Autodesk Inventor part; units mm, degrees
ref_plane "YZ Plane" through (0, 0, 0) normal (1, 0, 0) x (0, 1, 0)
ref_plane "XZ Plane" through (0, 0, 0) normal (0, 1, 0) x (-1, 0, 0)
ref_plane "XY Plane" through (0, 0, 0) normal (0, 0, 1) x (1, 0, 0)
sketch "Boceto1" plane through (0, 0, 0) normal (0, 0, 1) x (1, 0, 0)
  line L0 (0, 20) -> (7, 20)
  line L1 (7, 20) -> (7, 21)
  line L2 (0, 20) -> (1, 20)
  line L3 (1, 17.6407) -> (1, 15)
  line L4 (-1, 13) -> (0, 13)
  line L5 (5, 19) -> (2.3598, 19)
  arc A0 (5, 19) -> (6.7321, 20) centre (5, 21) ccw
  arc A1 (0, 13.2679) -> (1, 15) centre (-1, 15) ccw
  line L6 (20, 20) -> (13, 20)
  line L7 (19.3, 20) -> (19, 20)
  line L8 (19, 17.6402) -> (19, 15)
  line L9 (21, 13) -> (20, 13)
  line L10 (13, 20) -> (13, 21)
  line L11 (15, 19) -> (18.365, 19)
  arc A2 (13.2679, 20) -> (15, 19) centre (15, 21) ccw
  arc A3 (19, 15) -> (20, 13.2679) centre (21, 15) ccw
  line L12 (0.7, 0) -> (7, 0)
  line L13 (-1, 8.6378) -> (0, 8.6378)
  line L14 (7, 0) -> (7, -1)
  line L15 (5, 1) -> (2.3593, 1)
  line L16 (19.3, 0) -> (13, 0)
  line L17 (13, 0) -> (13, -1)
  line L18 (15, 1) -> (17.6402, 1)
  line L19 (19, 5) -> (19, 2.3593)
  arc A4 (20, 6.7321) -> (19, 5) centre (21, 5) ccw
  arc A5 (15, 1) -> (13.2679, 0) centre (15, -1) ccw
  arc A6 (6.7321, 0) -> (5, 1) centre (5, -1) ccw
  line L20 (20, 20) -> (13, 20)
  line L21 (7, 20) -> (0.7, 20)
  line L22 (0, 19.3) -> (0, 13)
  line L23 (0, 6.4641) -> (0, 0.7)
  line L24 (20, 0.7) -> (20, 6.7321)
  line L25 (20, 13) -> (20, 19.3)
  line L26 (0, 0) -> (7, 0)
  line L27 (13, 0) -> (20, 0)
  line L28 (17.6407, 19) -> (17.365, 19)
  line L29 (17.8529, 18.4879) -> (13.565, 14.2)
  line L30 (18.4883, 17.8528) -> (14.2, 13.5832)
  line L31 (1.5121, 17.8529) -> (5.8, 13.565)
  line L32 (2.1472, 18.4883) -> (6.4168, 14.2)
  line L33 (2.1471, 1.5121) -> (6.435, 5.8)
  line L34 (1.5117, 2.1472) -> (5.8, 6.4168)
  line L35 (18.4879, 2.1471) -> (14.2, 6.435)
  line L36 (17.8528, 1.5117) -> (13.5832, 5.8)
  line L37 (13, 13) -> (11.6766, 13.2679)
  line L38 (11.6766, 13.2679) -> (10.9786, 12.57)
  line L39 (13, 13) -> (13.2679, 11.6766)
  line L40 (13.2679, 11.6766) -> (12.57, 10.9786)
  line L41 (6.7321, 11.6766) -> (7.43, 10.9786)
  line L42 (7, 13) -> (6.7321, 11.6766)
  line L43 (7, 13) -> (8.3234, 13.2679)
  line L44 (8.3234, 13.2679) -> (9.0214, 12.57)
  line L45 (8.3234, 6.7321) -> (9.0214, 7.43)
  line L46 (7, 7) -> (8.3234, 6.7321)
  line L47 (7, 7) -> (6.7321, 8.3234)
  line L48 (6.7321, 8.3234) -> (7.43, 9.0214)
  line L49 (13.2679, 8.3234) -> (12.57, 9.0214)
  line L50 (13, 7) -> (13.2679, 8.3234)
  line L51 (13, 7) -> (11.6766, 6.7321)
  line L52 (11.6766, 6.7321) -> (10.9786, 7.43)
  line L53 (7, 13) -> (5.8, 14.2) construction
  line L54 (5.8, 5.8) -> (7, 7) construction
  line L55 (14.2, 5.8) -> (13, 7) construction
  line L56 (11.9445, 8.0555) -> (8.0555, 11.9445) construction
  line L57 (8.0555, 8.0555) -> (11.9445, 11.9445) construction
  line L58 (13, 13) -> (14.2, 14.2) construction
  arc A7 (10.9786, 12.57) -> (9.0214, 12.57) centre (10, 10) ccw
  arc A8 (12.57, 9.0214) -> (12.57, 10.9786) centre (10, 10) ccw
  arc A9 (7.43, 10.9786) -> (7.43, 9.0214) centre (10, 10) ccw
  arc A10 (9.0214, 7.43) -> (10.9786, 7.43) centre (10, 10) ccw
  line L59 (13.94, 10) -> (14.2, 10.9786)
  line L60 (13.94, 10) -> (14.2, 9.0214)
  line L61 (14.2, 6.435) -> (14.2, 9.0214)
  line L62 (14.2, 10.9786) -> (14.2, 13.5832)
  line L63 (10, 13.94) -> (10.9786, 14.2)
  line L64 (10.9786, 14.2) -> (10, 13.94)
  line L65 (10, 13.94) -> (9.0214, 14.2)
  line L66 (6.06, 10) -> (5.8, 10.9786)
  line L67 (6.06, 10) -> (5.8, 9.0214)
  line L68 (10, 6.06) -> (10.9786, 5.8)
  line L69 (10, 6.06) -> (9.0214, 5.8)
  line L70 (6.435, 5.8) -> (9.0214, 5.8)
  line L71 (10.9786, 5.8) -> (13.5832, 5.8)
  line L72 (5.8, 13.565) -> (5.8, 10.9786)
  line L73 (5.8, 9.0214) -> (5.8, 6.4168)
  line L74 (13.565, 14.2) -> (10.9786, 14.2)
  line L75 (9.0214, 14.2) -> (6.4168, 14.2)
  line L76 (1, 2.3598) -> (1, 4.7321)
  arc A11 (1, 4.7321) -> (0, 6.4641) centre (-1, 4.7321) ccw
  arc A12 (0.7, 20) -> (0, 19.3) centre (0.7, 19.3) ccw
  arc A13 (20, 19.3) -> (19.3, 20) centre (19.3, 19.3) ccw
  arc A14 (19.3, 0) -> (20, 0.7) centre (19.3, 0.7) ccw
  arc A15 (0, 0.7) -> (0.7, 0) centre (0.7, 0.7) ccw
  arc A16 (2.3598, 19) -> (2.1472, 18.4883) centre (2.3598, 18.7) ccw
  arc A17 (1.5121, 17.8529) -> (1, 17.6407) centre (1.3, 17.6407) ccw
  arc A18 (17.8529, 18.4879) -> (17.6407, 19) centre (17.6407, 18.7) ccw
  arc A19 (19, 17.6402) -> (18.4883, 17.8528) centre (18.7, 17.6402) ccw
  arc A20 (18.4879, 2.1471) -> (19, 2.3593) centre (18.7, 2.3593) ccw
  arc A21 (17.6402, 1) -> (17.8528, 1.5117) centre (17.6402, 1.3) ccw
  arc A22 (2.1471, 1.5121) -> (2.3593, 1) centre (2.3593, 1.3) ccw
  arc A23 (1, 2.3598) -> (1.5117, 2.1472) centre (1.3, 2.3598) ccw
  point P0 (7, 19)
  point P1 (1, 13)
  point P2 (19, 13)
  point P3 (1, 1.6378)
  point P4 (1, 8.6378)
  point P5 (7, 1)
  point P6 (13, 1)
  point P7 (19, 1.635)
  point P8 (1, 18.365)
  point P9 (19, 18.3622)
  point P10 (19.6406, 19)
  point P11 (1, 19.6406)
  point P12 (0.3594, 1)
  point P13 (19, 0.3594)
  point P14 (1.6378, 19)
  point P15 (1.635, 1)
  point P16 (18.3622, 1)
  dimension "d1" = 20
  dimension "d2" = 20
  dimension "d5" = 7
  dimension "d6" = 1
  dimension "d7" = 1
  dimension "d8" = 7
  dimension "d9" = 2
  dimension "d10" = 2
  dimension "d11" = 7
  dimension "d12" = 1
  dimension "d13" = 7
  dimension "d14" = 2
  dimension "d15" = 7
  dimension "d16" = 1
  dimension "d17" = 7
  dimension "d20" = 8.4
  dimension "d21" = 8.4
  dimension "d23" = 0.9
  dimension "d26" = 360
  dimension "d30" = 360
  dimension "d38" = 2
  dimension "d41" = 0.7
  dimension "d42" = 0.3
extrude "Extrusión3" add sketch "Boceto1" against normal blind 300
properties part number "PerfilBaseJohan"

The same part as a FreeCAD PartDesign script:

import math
import FreeCAD as App
import Part
import Sketcher

V = App.Vector
Q = App.Units.Quantity

doc = App.newDocument("Part")
params = doc.addObject("Spreadsheet::Sheet", "Params")
for row, (alias, value) in enumerate([
    ("sketch1_radius", "2 mm"),
    ("sketch1_radius2", "0.7 mm"),
    ("sketch1_radius3", "0.3 mm"),
    ("sketch1_radius4", "2.75 mm"),
    ("pad1_length", "300 mm"),
], start=1):
    params.set(f"A{row}", alias)
    params.set(f"B{row}", "=" + value)
    params.setAlias(f"B{row}", alias)

body = doc.addObject("PartDesign::Body", "Body")

# Sketch on XY plane
sketch1 = body.newObject("Sketcher::SketchObject", "Sketch")
sketch1.AttachmentSupport = (doc.getObject("XY_Plane"), [""])
sketch1.MapMode = "FlatFace"
sketch1.addGeometry([
    Part.LineSegment(V(6.7321, 20, 0), V(0.7, 20, 0)),  # 0
    Part.ArcOfCircle(Part.Circle(V(0.7, 19.3, 0), V(0, 0, 1), 0.7), math.radians(90), math.radians(180)),  # 1
    Part.LineSegment(V(0, 19.3, 0), V(0, 13.2679, 0)),  # 2
    Part.ArcOfCircle(Part.Circle(V(-1, 15, 0), V(0, 0, 1), 2.000043), math.radians(-60.000705), math.radians(0)),  # 3
    Part.LineSegment(V(1, 15, 0), V(1, 17.6407, 0)),  # 4
    Part.ArcOfCircle(Part.Circle(V(1.3, 17.6407, 0), V(0, 0, 1), 0.300025), math.radians(45.013504), math.radians(180)),  # 5
    Part.LineSegment(V(1.5121, 17.8529, 0), V(5.8, 13.565, 0)),  # 6
    Part.LineSegment(V(5.8, 13.565, 0), V(5.8, 10.9786, 0)),  # 7
    Part.LineSegment(V(5.8, 10.9786, 0), V(6.06, 10, 0)),  # 8
    Part.LineSegment(V(6.06, 10, 0), V(5.8, 9.0214, 0)),  # 9
    Part.LineSegment(V(5.8, 9.0214, 0), V(5.8, 6.4168, 0)),  # 10
    Part.LineSegment(V(5.8, 6.4168, 0), V(1.5117, 2.1472, 0)),  # 11
    Part.ArcOfCircle(Part.Circle(V(1.3, 2.3598, 0), V(0, 0, 1), 0.3), math.radians(180), math.radians(314.878468)),  # 12
    Part.LineSegment(V(1, 2.3598, 0), V(1, 4.7321, 0)),  # 13
    Part.ArcOfCircle(Part.Circle(V(-1, 4.7321, 0), V(0, 0, 1), 2), math.radians(0), math.radians(59.999272)),  # 14
    Part.LineSegment(V(0, 6.4641, 0), V(0, 0.7, 0)),  # 15
    Part.ArcOfCircle(Part.Circle(V(0.7, 0.7, 0), V(0, 0, 1), 0.7), math.radians(180), math.radians(270)),  # 16
    Part.LineSegment(V(0.7, 0, 0), V(6.7321, 0, 0)),  # 17
    Part.ArcOfCircle(Part.Circle(V(5, -1, 0), V(0, 0, 1), 2.000043), math.radians(29.999295), math.radians(90)),  # 18
    Part.LineSegment(V(5, 1, 0), V(2.3593, 1, 0)),  # 19
    Part.ArcOfCircle(Part.Circle(V(2.3593, 1.3, 0), V(0, 0, 1), 0.300025), math.radians(135.013504), math.radians(270)),  # 20
    Part.LineSegment(V(2.1471, 1.5121, 0), V(6.435, 5.8, 0)),  # 21
    Part.LineSegment(V(6.435, 5.8, 0), V(9.0214, 5.8, 0)),  # 22
    Part.LineSegment(V(9.0214, 5.8, 0), V(10, 6.06, 0)),  # 23
    Part.LineSegment(V(10, 6.06, 0), V(10.9786, 5.8, 0)),  # 24
    Part.LineSegment(V(10.9786, 5.8, 0), V(13.5832, 5.8, 0)),  # 25
    Part.LineSegment(V(13.5832, 5.8, 0), V(17.8528, 1.5117, 0)),  # 26
    Part.ArcOfCircle(Part.Circle(V(17.6402, 1.3, 0), V(0, 0, 1), 0.3), math.radians(-90), math.radians(44.878468)),  # 27
    Part.LineSegment(V(17.6402, 1, 0), V(15, 1, 0)),  # 28
    Part.ArcOfCircle(Part.Circle(V(15, -1, 0), V(0, 0, 1), 2), math.radians(90), math.radians(150.000705)),  # 29
    Part.LineSegment(V(13.2679, 0, 0), V(19.3, 0, 0)),  # 30
    Part.ArcOfCircle(Part.Circle(V(19.3, 0.7, 0), V(0, 0, 1), 0.7), math.radians(-90), math.radians(0)),  # 31
    Part.LineSegment(V(20, 0.7, 0), V(20, 6.7321, 0)),  # 32
    Part.ArcOfCircle(Part.Circle(V(21, 5, 0), V(0, 0, 1), 2.000043), math.radians(119.999295), math.radians(180)),  # 33
    Part.LineSegment(V(19, 5, 0), V(19, 2.3593, 0)),  # 34
    Part.ArcOfCircle(Part.Circle(V(18.7, 2.3593, 0), V(0, 0, 1), 0.300025), math.radians(-134.986496), math.radians(0)),  # 35
    Part.LineSegment(V(18.4879, 2.1471, 0), V(14.2, 6.435, 0)),  # 36
    Part.LineSegment(V(14.2, 6.435, 0), V(14.2, 9.0214, 0)),  # 37
    Part.LineSegment(V(14.2, 9.0214, 0), V(13.94, 10, 0)),  # 38
    Part.LineSegment(V(13.94, 10, 0), V(14.2, 10.9786, 0)),  # 39
    Part.LineSegment(V(14.2, 10.9786, 0), V(14.2, 13.5832, 0)),  # 40
    Part.LineSegment(V(14.2, 13.5832, 0), V(18.4883, 17.8528, 0)),  # 41
    Part.ArcOfCircle(Part.Circle(V(18.7, 17.6402, 0), V(0, 0, 1), 0.3), math.radians(0), math.radians(134.878468)),  # 42
    Part.LineSegment(V(19, 17.6402, 0), V(19, 15, 0)),  # 43
    Part.ArcOfCircle(Part.Circle(V(21, 15, 0), V(0, 0, 1), 2), math.radians(180), math.radians(240.000705)),  # 44
    Part.LineSegment(V(20, 13.2679, 0), V(20, 19.3, 0)),  # 45
    Part.ArcOfCircle(Part.Circle(V(19.3, 19.3, 0), V(0, 0, 1), 0.7), math.radians(0), math.radians(90)),  # 46
    Part.LineSegment(V(19.3, 20, 0), V(13.2679, 20, 0)),  # 47
    Part.ArcOfCircle(Part.Circle(V(15, 21, 0), V(0, 0, 1), 2.000043), math.radians(-150.000705), math.radians(-90)),  # 48
    Part.LineSegment(V(15, 19, 0), V(17.6407, 19, 0)),  # 49
    Part.ArcOfCircle(Part.Circle(V(17.6407, 18.7, 0), V(0, 0, 1), 0.300025), math.radians(-44.986496), math.radians(90)),  # 50
    Part.LineSegment(V(17.8529, 18.4879, 0), V(13.565, 14.2, 0)),  # 51
    Part.LineSegment(V(13.565, 14.2, 0), V(10.9786, 14.2, 0)),  # 52
    Part.LineSegment(V(10.9786, 14.2, 0), V(10, 13.94, 0)),  # 53
    Part.LineSegment(V(10, 13.94, 0), V(9.0214, 14.2, 0)),  # 54
    Part.LineSegment(V(9.0214, 14.2, 0), V(6.4168, 14.2, 0)),  # 55
    Part.LineSegment(V(6.4168, 14.2, 0), V(2.1472, 18.4883, 0)),  # 56
    Part.ArcOfCircle(Part.Circle(V(2.3598, 18.7, 0), V(0, 0, 1), 0.3), math.radians(90), math.radians(224.878468)),  # 57
    Part.LineSegment(V(2.3598, 19, 0), V(5, 19, 0)),  # 58
    Part.ArcOfCircle(Part.Circle(V(5, 21, 0), V(0, 0, 1), 2), math.radians(-90), math.radians(-29.999295)),  # 59
    Part.LineSegment(V(11.6766, 13.2679, 0), V(13, 13, 0)),  # 60
    Part.LineSegment(V(13, 13, 0), V(13.2679, 11.6766, 0)),  # 61
    Part.LineSegment(V(13.2679, 11.6766, 0), V(12.57, 10.9786, 0)),  # 62
    Part.ArcOfCircle(Part.Circle(V(10, 10, 0), V(0, 0, 1), 2.750011), math.radians(-20.845743), math.radians(20.845743)),  # 63
    Part.LineSegment(V(12.57, 9.0214, 0), V(13.2679, 8.3234, 0)),  # 64
    Part.LineSegment(V(13.2679, 8.3234, 0), V(13, 7, 0)),  # 65
    Part.LineSegment(V(13, 7, 0), V(11.6766, 6.7321, 0)),  # 66
    Part.LineSegment(V(11.6766, 6.7321, 0), V(10.9786, 7.43, 0)),  # 67
    Part.ArcOfCircle(Part.Circle(V(10, 10, 0), V(0, 0, 1), 2.750011), math.radians(-110.845743), math.radians(-69.154257)),  # 68
    Part.LineSegment(V(9.0214, 7.43, 0), V(8.3234, 6.7321, 0)),  # 69
    Part.LineSegment(V(8.3234, 6.7321, 0), V(7, 7, 0)),  # 70
    Part.LineSegment(V(7, 7, 0), V(6.7321, 8.3234, 0)),  # 71
    Part.LineSegment(V(6.7321, 8.3234, 0), V(7.43, 9.0214, 0)),  # 72
    Part.ArcOfCircle(Part.Circle(V(10, 10, 0), V(0, 0, 1), 2.750011), math.radians(159.154257), math.radians(200.845743)),  # 73
    Part.LineSegment(V(7.43, 10.9786, 0), V(6.7321, 11.6766, 0)),  # 74
    Part.LineSegment(V(6.7321, 11.6766, 0), V(7, 13, 0)),  # 75
    Part.LineSegment(V(7, 13, 0), V(8.3234, 13.2679, 0)),  # 76
    Part.LineSegment(V(8.3234, 13.2679, 0), V(9.0214, 12.57, 0)),  # 77
    Part.ArcOfCircle(Part.Circle(V(10, 10, 0), V(0, 0, 1), 2.750011), math.radians(69.154257), math.radians(110.845743)),  # 78
    Part.LineSegment(V(10.9786, 12.57, 0), V(11.6766, 13.2679, 0)),  # 79
], False)
sketch1.addConstraint([
    Sketcher.Constraint("Tangent", 0, 2, 1, 1),
    Sketcher.Constraint("Tangent", 1, 2, 2, 1),
    Sketcher.Constraint("Coincident", 2, 2, 3, 1),
    Sketcher.Constraint("Tangent", 3, 2, 4, 1),
    Sketcher.Constraint("Tangent", 4, 2, 5, 2),
    Sketcher.Constraint("Tangent", 5, 1, 6, 1),
    Sketcher.Constraint("Coincident", 6, 2, 7, 1),
    Sketcher.Constraint("Coincident", 7, 2, 8, 1),
    Sketcher.Constraint("Coincident", 8, 2, 9, 1),
    Sketcher.Constraint("Coincident", 9, 2, 10, 1),
    Sketcher.Constraint("Coincident", 10, 2, 11, 1),
    Sketcher.Constraint("Tangent", 11, 2, 12, 2),
    Sketcher.Constraint("Tangent", 12, 1, 13, 1),
    Sketcher.Constraint("Tangent", 13, 2, 14, 1),
    Sketcher.Constraint("Coincident", 14, 2, 15, 1),
    Sketcher.Constraint("Tangent", 15, 2, 16, 1),
    Sketcher.Constraint("Tangent", 16, 2, 17, 1),
    Sketcher.Constraint("Coincident", 17, 2, 18, 1),
    Sketcher.Constraint("Tangent", 18, 2, 19, 1),
    Sketcher.Constraint("Tangent", 19, 2, 20, 2),
    Sketcher.Constraint("Tangent", 20, 1, 21, 1),
    Sketcher.Constraint("Coincident", 21, 2, 22, 1),
    Sketcher.Constraint("Coincident", 22, 2, 23, 1),
    Sketcher.Constraint("Coincident", 23, 2, 24, 1),
    Sketcher.Constraint("Coincident", 24, 2, 25, 1),
    Sketcher.Constraint("Coincident", 25, 2, 26, 1),
    Sketcher.Constraint("Tangent", 26, 2, 27, 2),
    Sketcher.Constraint("Tangent", 27, 1, 28, 1),
    Sketcher.Constraint("Tangent", 28, 2, 29, 1),
    Sketcher.Constraint("Coincident", 29, 2, 30, 1),
    Sketcher.Constraint("Tangent", 30, 2, 31, 1),
    Sketcher.Constraint("Tangent", 31, 2, 32, 1),
    Sketcher.Constraint("Coincident", 32, 2, 33, 1),
    Sketcher.Constraint("Tangent", 33, 2, 34, 1),
    Sketcher.Constraint("Tangent", 34, 2, 35, 2),
    Sketcher.Constraint("Tangent", 35, 1, 36, 1),
    Sketcher.Constraint("Coincident", 36, 2, 37, 1),
    Sketcher.Constraint("Coincident", 37, 2, 38, 1),
    Sketcher.Constraint("Coincident", 38, 2, 39, 1),
    Sketcher.Constraint("Coincident", 39, 2, 40, 1),
    Sketcher.Constraint("Coincident", 40, 2, 41, 1),
    Sketcher.Constraint("Tangent", 41, 2, 42, 2),
    Sketcher.Constraint("Tangent", 42, 1, 43, 1),
    Sketcher.Constraint("Tangent", 43, 2, 44, 1),
    Sketcher.Constraint("Coincident", 44, 2, 45, 1),
    Sketcher.Constraint("Tangent", 45, 2, 46, 1),
    Sketcher.Constraint("Tangent", 46, 2, 47, 1),
    Sketcher.Constraint("Coincident", 47, 2, 48, 1),
    Sketcher.Constraint("Tangent", 48, 2, 49, 1),
    Sketcher.Constraint("Tangent", 49, 2, 50, 2),
    Sketcher.Constraint("Tangent", 50, 1, 51, 1),
    Sketcher.Constraint("Coincident", 51, 2, 52, 1),
    Sketcher.Constraint("Coincident", 52, 2, 53, 1),
    Sketcher.Constraint("Coincident", 53, 2, 54, 1),
    Sketcher.Constraint("Coincident", 54, 2, 55, 1),
    Sketcher.Constraint("Coincident", 55, 2, 56, 1),
    Sketcher.Constraint("Tangent", 56, 2, 57, 2),
    Sketcher.Constraint("Tangent", 57, 1, 58, 1),
    Sketcher.Constraint("Tangent", 58, 2, 59, 1),
    Sketcher.Constraint("Coincident", 59, 2, 0, 1),
    Sketcher.Constraint("Coincident", 60, 2, 61, 1),
    Sketcher.Constraint("Coincident", 61, 2, 62, 1),
    Sketcher.Constraint("Coincident", 62, 2, 63, 2),
    Sketcher.Constraint("Coincident", 63, 1, 64, 1),
    Sketcher.Constraint("Coincident", 64, 2, 65, 1),
    Sketcher.Constraint("Coincident", 65, 2, 66, 1),
    Sketcher.Constraint("Coincident", 66, 2, 67, 1),
    Sketcher.Constraint("Coincident", 67, 2, 68, 2),
    Sketcher.Constraint("Coincident", 68, 1, 69, 1),
    Sketcher.Constraint("Coincident", 69, 2, 70, 1),
    Sketcher.Constraint("Coincident", 70, 2, 71, 1),
    Sketcher.Constraint("Coincident", 71, 2, 72, 1),
    Sketcher.Constraint("Coincident", 72, 2, 73, 2),
    Sketcher.Constraint("Coincident", 73, 1, 74, 1),
    Sketcher.Constraint("Coincident", 74, 2, 75, 1),
    Sketcher.Constraint("Coincident", 75, 2, 76, 1),
    Sketcher.Constraint("Coincident", 76, 2, 77, 1),
    Sketcher.Constraint("Coincident", 77, 2, 78, 2),
    Sketcher.Constraint("Coincident", 78, 1, 79, 1),
    Sketcher.Constraint("Coincident", 79, 2, 60, 1),
    Sketcher.Constraint("Horizontal", 0),
    Sketcher.Constraint("Vertical", 2),
    Sketcher.Constraint("Vertical", 4),
    Sketcher.Constraint("Vertical", 7),
    Sketcher.Constraint("Vertical", 10),
    Sketcher.Constraint("Vertical", 13),
    Sketcher.Constraint("Vertical", 15),
    Sketcher.Constraint("Horizontal", 17),
    Sketcher.Constraint("Horizontal", 19),
    Sketcher.Constraint("Horizontal", 22),
    Sketcher.Constraint("Horizontal", 25),
    Sketcher.Constraint("Horizontal", 28),
    Sketcher.Constraint("Horizontal", 30),
    Sketcher.Constraint("Vertical", 32),
    Sketcher.Constraint("Vertical", 34),
    Sketcher.Constraint("Vertical", 37),
    Sketcher.Constraint("Vertical", 40),
    Sketcher.Constraint("Vertical", 43),
    Sketcher.Constraint("Vertical", 45),
    Sketcher.Constraint("Horizontal", 47),
    Sketcher.Constraint("Horizontal", 49),
    Sketcher.Constraint("Horizontal", 52),
    Sketcher.Constraint("Horizontal", 55),
    Sketcher.Constraint("Horizontal", 58),
    Sketcher.Constraint("Coincident", 68, 3, 63, 3),
    Sketcher.Constraint("Coincident", 73, 3, 63, 3),
    Sketcher.Constraint("Coincident", 78, 3, 63, 3),
    Sketcher.Constraint("Equal", 5, 12),
    Sketcher.Constraint("Equal", 3, 14),
    Sketcher.Constraint("Equal", 1, 16),
    Sketcher.Constraint("Equal", 14, 18),
    Sketcher.Constraint("Equal", 12, 20),
    Sketcher.Constraint("Equal", 20, 27),
    Sketcher.Constraint("Equal", 18, 29),
    Sketcher.Constraint("Equal", 16, 31),
    Sketcher.Constraint("Equal", 29, 33),
    Sketcher.Constraint("Equal", 27, 35),
    Sketcher.Constraint("Equal", 35, 42),
    Sketcher.Constraint("Equal", 33, 44),
    Sketcher.Constraint("Equal", 31, 46),
    Sketcher.Constraint("Equal", 44, 48),
    Sketcher.Constraint("Equal", 42, 50),
    Sketcher.Constraint("Equal", 50, 57),
    Sketcher.Constraint("Equal", 48, 59),
    Sketcher.Constraint("Equal", 63, 68),
    Sketcher.Constraint("Equal", 68, 73),
    Sketcher.Constraint("Equal", 73, 78),
    Sketcher.Constraint("PointOnObject", 1, 2, -2),
    Sketcher.Constraint("PointOnObject", 14, 2, -2),
    Sketcher.Constraint("PointOnObject", 16, 2, -1),
    Sketcher.Constraint("PointOnObject", 29, 2, -1),
    Sketcher.Constraint("Perpendicular", 6, 21),
    Sketcher.Constraint("Perpendicular", 8, 23),
    Sketcher.Constraint("Perpendicular", 9, 24),
    Sketcher.Constraint("Perpendicular", 11, 26),
    Sketcher.Constraint("Perpendicular", 21, 36),
    Sketcher.Constraint("Perpendicular", 23, 38),
    Sketcher.Constraint("Perpendicular", 24, 39),
    Sketcher.Constraint("Perpendicular", 26, 41),
    Sketcher.Constraint("Perpendicular", 36, 51),
    Sketcher.Constraint("Perpendicular", 38, 53),
    Sketcher.Constraint("Perpendicular", 39, 54),
    Sketcher.Constraint("Perpendicular", 41, 56),
    Sketcher.Constraint("Parallel", 51, 62),
    Sketcher.Constraint("Perpendicular", 62, 64),
    Sketcher.Constraint("Perpendicular", 60, 65),
    Sketcher.Constraint("Perpendicular", 61, 66),
    Sketcher.Constraint("Parallel", 64, 67),
    Sketcher.Constraint("Perpendicular", 67, 69),
    Sketcher.Constraint("Perpendicular", 65, 70),
    Sketcher.Constraint("Perpendicular", 66, 71),
    Sketcher.Constraint("Parallel", 69, 72),
    Sketcher.Constraint("Perpendicular", 72, 74),
    Sketcher.Constraint("Perpendicular", 70, 75),
    Sketcher.Constraint("Perpendicular", 71, 76),
    Sketcher.Constraint("Parallel", 74, 77),
    Sketcher.Constraint("Perpendicular", 77, 79),
    Sketcher.Constraint("Horizontal", 20, 3, 27, 3),
    Sketcher.Constraint("Horizontal", 3, 3, 44, 3),
    Sketcher.Constraint("Horizontal", 1, 3, 46, 3),
    Sketcher.Constraint("Horizontal", 50, 3, 57, 3),
    Sketcher.Constraint("Horizontal", 78, 3, 8, 2),
    Sketcher.Constraint("Horizontal", 22, 2, 24, 2),
    Sketcher.Constraint("Horizontal", 11, 2, 35, 1),
    Sketcher.Constraint("Horizontal", 9, 2, 37, 2),
    Sketcher.Constraint("Horizontal", 8, 2, 38, 2),
    Sketcher.Constraint("Horizontal", 7, 2, 39, 2),
    Sketcher.Constraint("Horizontal", 5, 1, 41, 2),
    Sketcher.Constraint("Horizontal", 2, 2, 44, 2),
    Sketcher.Constraint("Horizontal", 52, 2, 54, 2),
    Sketcher.Constraint("Horizontal", 39, 2, 62, 2),
    Sketcher.Constraint("Horizontal", 37, 2, 63, 1),
    Sketcher.Constraint("Horizontal", 32, 2, 66, 2),
    Sketcher.Constraint("Horizontal", 67, 2, 68, 1),
    Sketcher.Constraint("Horizontal", 66, 2, 69, 2),
    Sketcher.Constraint("Horizontal", 65, 2, 70, 2),
    Sketcher.Constraint("Horizontal", 64, 2, 71, 2),
    Sketcher.Constraint("Horizontal", 63, 1, 72, 2),
    Sketcher.Constraint("Horizontal", 62, 2, 73, 1),
    Sketcher.Constraint("Horizontal", 61, 2, 74, 2),
    Sketcher.Constraint("Horizontal", 60, 2, 75, 2),
    Sketcher.Constraint("Horizontal", 44, 2, 76, 2),
    Sketcher.Constraint("Horizontal", 77, 2, 78, 1),
    Sketcher.Constraint("Vertical", 5, 3, 12, 3),
    Sketcher.Constraint("Vertical", 35, 3, 42, 3),
    Sketcher.Constraint("Vertical", 31, 3, 46, 3),
    Sketcher.Constraint("Vertical", 29, 3, 48, 3),
    Sketcher.Constraint("Vertical", 18, 3, 59, 3),
    Sketcher.Constraint("Vertical", 7, 2, 9, 2),
    Sketcher.Constraint("Vertical", 78, 3, 23, 2),
    Sketcher.Constraint("Vertical", 37, 2, 39, 2),
    Sketcher.Constraint("Vertical", 29, 2, 47, 2),
    Sketcher.Constraint("Vertical", 26, 2, 50, 1),
    Sketcher.Constraint("Vertical", 24, 2, 52, 2),
    Sketcher.Constraint("Vertical", 23, 2, 53, 2),
    Sketcher.Constraint("Vertical", 20, 1, 56, 2),
    Sketcher.Constraint("Vertical", 47, 2, 61, 2),
    Sketcher.Constraint("Vertical", 61, 2, 64, 2),
    Sketcher.Constraint("Vertical", 60, 2, 65, 2),
    Sketcher.Constraint("Vertical", 52, 2, 67, 2),
    Sketcher.Constraint("Vertical", 59, 2, 71, 2),
    Sketcher.Constraint("Vertical", 71, 2, 74, 2),
    Sketcher.Constraint("Vertical", 69, 2, 76, 2),
    Sketcher.Constraint("Equal", 17, 30),
    Sketcher.Constraint("Equal", 19, 49),
    Sketcher.Constraint("Equal", 22, 52),
    Sketcher.Constraint("Equal", 47, 2),
    Sketcher.Constraint("Equal", 49, 4),
    Sketcher.Constraint("Equal", 52, 7),
    Sketcher.Constraint("Equal", 55, 10),
    Sketcher.Constraint("Equal", 2, 32),
    Sketcher.Constraint("Equal", 7, 37),
    Sketcher.Constraint("Equal", 6, 21),
    Sketcher.Constraint("Equal", 9, 23),
    Sketcher.Constraint("Equal", 60, 61),
    Sketcher.Constraint("Radius", 3, 2.0),
    Sketcher.Constraint("Radius", 1, 0.7),
    Sketcher.Constraint("Radius", 5, 0.3),
    Sketcher.Constraint("DistanceX", 3, 3, -1, 1, 1.0),
    Sketcher.Constraint("DistanceY", -1, 1, 0, 2, 20.0),
    Sketcher.Constraint("DistanceY", -1, 1, 65, 2, 7.0),
    Sketcher.Constraint("Radius", 63, 2.75),
    Sketcher.Constraint("DistanceY", -1, 1, 3, 3, 15.0),
    Sketcher.Constraint("DistanceX", -1, 1, 6, 2, 5.8),
    Sketcher.Constraint("Angle", 8, Q("-75.121 deg")),
    Sketcher.Constraint("DistanceY", 15, 2, 15, 1, 5.764),
    Sketcher.Constraint("DistanceX", -1, 1, 8, 2, 6.06),
    Sketcher.Constraint("DistanceX", 19, 2, 19, 1, 2.6407),
    Sketcher.Constraint("DistanceX", 25, 1, 25, 2, 2.6046),
])
sketch1.setExpression("Constraints[215]", "Params.sketch1_radius")
sketch1.setExpression("Constraints[216]", "Params.sketch1_radius2")
sketch1.setExpression("Constraints[217]", "Params.sketch1_radius3")
sketch1.setExpression("Constraints[221]", "Params.sketch1_radius4")
pad1 = body.newObject("PartDesign::Pad", "Pad")
pad1.Profile = sketch1
pad1.setExpression("Length", "Params.pad1_length")
pad1.Reversed = True

doc.recompute()
